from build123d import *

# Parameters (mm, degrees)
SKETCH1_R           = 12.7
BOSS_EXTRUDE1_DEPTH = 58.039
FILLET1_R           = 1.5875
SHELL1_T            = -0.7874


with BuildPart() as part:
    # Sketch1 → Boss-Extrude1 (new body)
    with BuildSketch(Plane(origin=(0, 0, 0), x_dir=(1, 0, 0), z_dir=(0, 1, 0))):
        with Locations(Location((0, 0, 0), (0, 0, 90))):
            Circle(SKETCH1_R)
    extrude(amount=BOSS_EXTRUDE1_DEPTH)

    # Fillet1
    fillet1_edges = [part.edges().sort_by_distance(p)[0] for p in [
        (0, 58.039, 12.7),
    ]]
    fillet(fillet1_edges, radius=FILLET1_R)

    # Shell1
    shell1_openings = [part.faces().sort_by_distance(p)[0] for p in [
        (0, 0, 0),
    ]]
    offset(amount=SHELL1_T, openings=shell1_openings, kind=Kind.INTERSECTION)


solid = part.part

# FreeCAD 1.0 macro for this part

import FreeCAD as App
import Part
import Sketcher

V = App.Vector
Q = App.Units.Quantity


def edges_at(feature, points):
    """Names of the edges that pass closest to the given points."""
    edges = feature.Shape.Edges
    near = lambda p: min(range(len(edges)), key=lambda i: edges[i].distToShape(Part.Vertex(*p))[0])
    return sorted({f"Edge{near(p) + 1}" for p in points})


def faces_at(feature, points):
    """Names of the faces that lie closest to the given points."""
    faces = feature.Shape.Faces
    near = lambda p: min(range(len(faces)), key=lambda i: faces[i].distToShape(Part.Vertex(*p))[0])
    return sorted({f"Face{near(p) + 1}" for p in points})

doc = App.newDocument("Part")
body = doc.addObject("PartDesign::Body", "Body")

# Sketch on XZ plane
sketch1 = body.newObject("Sketcher::SketchObject", "Sketch")
sketch1.AttachmentSupport = (doc.getObject("XZ_Plane"), [""])
sketch1.MapMode = "FlatFace"
sketch1.addGeometry(Part.Circle(V(0, 0, 0), V(0, 0, 1), 12.7), False)
sketch1.addConstraint([
    Sketcher.Constraint("Coincident", 0, 3, -1, 1),
    Sketcher.Constraint("Diameter", 0, Q("1 in")),
])
pad1 = body.newObject("PartDesign::Pad", "Pad")
pad1.Profile = sketch1
pad1.Length = Q("2.285 in")
pad1.Reversed = True
doc.recompute()

fillet = body.newObject("PartDesign::Fillet", "Fillet")
fillet.Base = (pad1, edges_at(pad1, [(0, 58.039, 12.7)]))
fillet.Radius = Q("0.0625 in")
doc.recompute()

thickness = body.newObject("PartDesign::Thickness", "Thickness")
thickness.Base = (fillet, faces_at(fillet, [(0, 0, 0)]))
thickness.Value = Q("0.031 in")
thickness.Reversed = True
thickness.Join = "Intersection"

doc.recompute()
